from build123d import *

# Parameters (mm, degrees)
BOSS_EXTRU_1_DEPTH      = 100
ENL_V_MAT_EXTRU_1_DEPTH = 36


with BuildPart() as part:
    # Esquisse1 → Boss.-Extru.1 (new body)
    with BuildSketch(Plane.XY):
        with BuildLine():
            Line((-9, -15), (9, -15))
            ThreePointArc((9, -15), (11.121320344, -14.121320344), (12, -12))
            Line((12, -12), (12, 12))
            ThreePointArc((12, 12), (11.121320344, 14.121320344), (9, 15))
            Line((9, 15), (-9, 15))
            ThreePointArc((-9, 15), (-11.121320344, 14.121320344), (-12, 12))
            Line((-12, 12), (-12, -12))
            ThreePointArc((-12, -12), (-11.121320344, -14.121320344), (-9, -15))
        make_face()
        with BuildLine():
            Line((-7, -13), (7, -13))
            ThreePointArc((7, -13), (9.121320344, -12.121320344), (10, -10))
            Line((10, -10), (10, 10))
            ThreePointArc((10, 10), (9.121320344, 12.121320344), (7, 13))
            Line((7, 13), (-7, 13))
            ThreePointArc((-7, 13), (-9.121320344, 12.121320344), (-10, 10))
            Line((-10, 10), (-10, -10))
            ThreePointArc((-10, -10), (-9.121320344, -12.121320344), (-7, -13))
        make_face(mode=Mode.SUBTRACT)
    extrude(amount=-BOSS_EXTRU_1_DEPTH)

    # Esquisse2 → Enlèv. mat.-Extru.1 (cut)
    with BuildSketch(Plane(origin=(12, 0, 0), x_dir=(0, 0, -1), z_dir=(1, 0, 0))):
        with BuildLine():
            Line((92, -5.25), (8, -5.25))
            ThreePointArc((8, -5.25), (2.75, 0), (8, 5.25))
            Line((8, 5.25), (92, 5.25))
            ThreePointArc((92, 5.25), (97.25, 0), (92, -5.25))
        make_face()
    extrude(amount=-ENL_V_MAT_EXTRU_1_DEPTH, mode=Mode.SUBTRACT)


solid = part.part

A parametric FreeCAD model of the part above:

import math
import FreeCAD as App
import Part
import Sketcher

V = App.Vector
Q = App.Units.Quantity

doc = App.newDocument("Part")
params = doc.addObject("Spreadsheet::Sheet", "Params")
for row, (alias, value) in enumerate([
    ("sketch1_radius", "3 mm"),
    ("sketch1_width", "18 mm"),
    ("sketch1_width2", "14 mm"),
    ("sketch1_height", "24 mm"),
    ("sketch1_height2", "20 mm"),
    ("pad1_length", "100 mm"),
    ("sketch2_height", "84 mm"),
    ("sketch2_radius", "5.25 mm"),
    ("pocket1_length", "36 mm"),
], start=1):
    params.set(f"A{row}", alias)
    params.set(f"B{row}", "=" + value)
    params.setAlias(f"B{row}", alias)

body = doc.addObject("PartDesign::Body", "Body")

sketch1 = doc.addObject("Sketcher::SketchObject", "Sketch")
body.addObject(sketch1)
sketch1.AttachmentSupport = (doc.XY_Plane, [""])
sketch1.MapMode = "FlatFace"
sketch1.addGeometry([
    Part.LineSegment(V(-9, -15, 0), V(9, -15, 0)),
    Part.ArcOfCircle(Part.Circle(V(9, -12, 0), V(0, 0, 1), 3), math.radians(-90), math.radians(0)),
    Part.LineSegment(V(12, -12, 0), V(12, 12, 0)),
    Part.ArcOfCircle(Part.Circle(V(9, 12, 0), V(0, 0, 1), 3), math.radians(0), math.radians(90)),
    Part.LineSegment(V(9, 15, 0), V(-9, 15, 0)),
    Part.ArcOfCircle(Part.Circle(V(-9, 12, 0), V(0, 0, 1), 3), math.radians(90), math.radians(180)),
    Part.LineSegment(V(-12, 12, 0), V(-12, -12, 0)),
    Part.ArcOfCircle(Part.Circle(V(-9, -12, 0), V(0, 0, 1), 3), math.radians(180), math.radians(270)),
    Part.LineSegment(V(7, -13, 0), V(-7, -13, 0)),
    Part.ArcOfCircle(Part.Circle(V(-7, -10, 0), V(0, 0, 1), 3), math.radians(180), math.radians(270)),
    Part.LineSegment(V(-10, -10, 0), V(-10, 10, 0)),
    Part.ArcOfCircle(Part.Circle(V(-7, 10, 0), V(0, 0, 1), 3), math.radians(90), math.radians(180)),
    Part.LineSegment(V(-7, 13, 0), V(7, 13, 0)),
    Part.ArcOfCircle(Part.Circle(V(7, 10, 0), V(0, 0, 1), 3), math.radians(0), math.radians(90)),
    Part.LineSegment(V(10, 10, 0), V(10, -10, 0)),
    Part.ArcOfCircle(Part.Circle(V(7, -10, 0), V(0, 0, 1), 3), math.radians(-90), math.radians(0)),
], False)
sketch1.addConstraint([
    Sketcher.Constraint("Tangent", 0, 2, 1, 1),
    Sketcher.Constraint("Tangent", 1, 2, 2, 1),
    Sketcher.Constraint("Tangent", 2, 2, 3, 1),
    Sketcher.Constraint("Tangent", 3, 2, 4, 1),
    Sketcher.Constraint("Tangent", 4, 2, 5, 1),
    Sketcher.Constraint("Tangent", 5, 2, 6, 1),
    Sketcher.Constraint("Tangent", 6, 2, 7, 1),
    Sketcher.Constraint("Tangent", 7, 2, 0, 1),
    Sketcher.Constraint("Tangent", 8, 2, 9, 2),
    Sketcher.Constraint("Tangent", 9, 1, 10, 1),
    Sketcher.Constraint("Tangent", 10, 2, 11, 2),
    Sketcher.Constraint("Tangent", 11, 1, 12, 1),
    Sketcher.Constraint("Tangent", 12, 2, 13, 2),
    Sketcher.Constraint("Tangent", 13, 1, 14, 1),
    Sketcher.Constraint("Tangent", 14, 2, 15, 2),
    Sketcher.Constraint("Tangent", 15, 1, 8, 1),
    Sketcher.Constraint("Horizontal", 0),
    Sketcher.Constraint("Vertical", 2),
    Sketcher.Constraint("Horizontal", 4),
    Sketcher.Constraint("Vertical", 6),
    Sketcher.Constraint("Horizontal", 8),
    Sketcher.Constraint("Vertical", 10),
    Sketcher.Constraint("Horizontal", 12),
    Sketcher.Constraint("Vertical", 14),
    Sketcher.Constraint("Equal", 1, 3),
    Sketcher.Constraint("Equal", 3, 5),
    Sketcher.Constraint("Equal", 5, 7),
    Sketcher.Constraint("Equal", 7, 9),
    Sketcher.Constraint("Equal", 9, 11),
    Sketcher.Constraint("Equal", 11, 13),
    Sketcher.Constraint("Equal", 13, 15),
    Sketcher.Constraint("Symmetric", 1, 3, 5, 3, -1, 1),
    Sketcher.Constraint("Symmetric", 9, 3, 13, 3, -1, 1),
    Sketcher.Constraint("Radius", 1, Q("3 mm")),
    Sketcher.Constraint("DistanceX", 0, 1, 0, 2, Q("18 mm")),
    Sketcher.Constraint("DistanceX", 8, 2, 8, 1, Q("14 mm")),
    Sketcher.Constraint("DistanceY", 2, 1, 2, 2, Q("24 mm")),
    Sketcher.Constraint("DistanceY", 10, 1, 10, 2, Q("20 mm")),
])
sketch1.setExpression("Constraints[33]", "Params.sketch1_radius")
sketch1.setExpression("Constraints[34]", "Params.sketch1_width")
sketch1.setExpression("Constraints[35]", "Params.sketch1_width2")
sketch1.setExpression("Constraints[36]", "Params.sketch1_height")
sketch1.setExpression("Constraints[37]", "Params.sketch1_height2")
pad1 = doc.addObject("PartDesign::Pad", "Pad")
body.addObject(pad1)
pad1.Profile = sketch1
pad1.setExpression("Length", "Params.pad1_length")
pad1.Reversed = True

sketch2 = doc.addObject("Sketcher::SketchObject", "Sketch001")
body.addObject(sketch2)
sketch2.AttachmentSupport = (doc.YZ_Plane, [""])
sketch2.MapMode = "FlatFace"
sketch2.AttachmentOffset = App.Placement(V(0, 0, 12), App.Rotation())
sketch2.addGeometry([
    Part.LineSegment(V(-5, -8, 0), V(-5, -92, 0)),
    Part.ArcOfCircle(Part.Circle(V(0, -92, 0), V(0, 0, 1), 5), math.radians(180), math.radians(360)),
    Part.LineSegment(V(5, -92, 0), V(5, -8, 0)),
    Part.ArcOfCircle(Part.Circle(V(0, -8, 0), V(0, 0, 1), 5), math.radians(0), math.radians(180)),
], False)
sketch2.addConstraint([
    Sketcher.Constraint("Tangent", 0, 2, 1, 1),
    Sketcher.Constraint("Tangent", 1, 2, 2, 1),
    Sketcher.Constraint("Tangent", 2, 2, 3, 1),
    Sketcher.Constraint("Tangent", 3, 2, 0, 1),
    Sketcher.Constraint("Vertical", 0),
    Sketcher.Constraint("Vertical", 2),
    Sketcher.Constraint("PointOnObject", 1, 3, -2),
    Sketcher.Constraint("DistanceY", 0, 2, 0, 1, Q("84 mm")),
    Sketcher.Constraint("Radius", 1, Q("5.25 mm")),
    Sketcher.Constraint("DistanceY", 1, 3, -1, 1, Q("92 mm")),
])
sketch2.setExpression("Constraints[7]", "Params.sketch2_height")
sketch2.setExpression("Constraints[8]", "Params.sketch2_radius")
pocket1 = doc.addObject("PartDesign::Pocket", "Pocket")
body.addObject(pocket1)
pocket1.Profile = sketch2
pocket1.setExpression("Length", "Params.pocket1_length")

doc.recompute()
